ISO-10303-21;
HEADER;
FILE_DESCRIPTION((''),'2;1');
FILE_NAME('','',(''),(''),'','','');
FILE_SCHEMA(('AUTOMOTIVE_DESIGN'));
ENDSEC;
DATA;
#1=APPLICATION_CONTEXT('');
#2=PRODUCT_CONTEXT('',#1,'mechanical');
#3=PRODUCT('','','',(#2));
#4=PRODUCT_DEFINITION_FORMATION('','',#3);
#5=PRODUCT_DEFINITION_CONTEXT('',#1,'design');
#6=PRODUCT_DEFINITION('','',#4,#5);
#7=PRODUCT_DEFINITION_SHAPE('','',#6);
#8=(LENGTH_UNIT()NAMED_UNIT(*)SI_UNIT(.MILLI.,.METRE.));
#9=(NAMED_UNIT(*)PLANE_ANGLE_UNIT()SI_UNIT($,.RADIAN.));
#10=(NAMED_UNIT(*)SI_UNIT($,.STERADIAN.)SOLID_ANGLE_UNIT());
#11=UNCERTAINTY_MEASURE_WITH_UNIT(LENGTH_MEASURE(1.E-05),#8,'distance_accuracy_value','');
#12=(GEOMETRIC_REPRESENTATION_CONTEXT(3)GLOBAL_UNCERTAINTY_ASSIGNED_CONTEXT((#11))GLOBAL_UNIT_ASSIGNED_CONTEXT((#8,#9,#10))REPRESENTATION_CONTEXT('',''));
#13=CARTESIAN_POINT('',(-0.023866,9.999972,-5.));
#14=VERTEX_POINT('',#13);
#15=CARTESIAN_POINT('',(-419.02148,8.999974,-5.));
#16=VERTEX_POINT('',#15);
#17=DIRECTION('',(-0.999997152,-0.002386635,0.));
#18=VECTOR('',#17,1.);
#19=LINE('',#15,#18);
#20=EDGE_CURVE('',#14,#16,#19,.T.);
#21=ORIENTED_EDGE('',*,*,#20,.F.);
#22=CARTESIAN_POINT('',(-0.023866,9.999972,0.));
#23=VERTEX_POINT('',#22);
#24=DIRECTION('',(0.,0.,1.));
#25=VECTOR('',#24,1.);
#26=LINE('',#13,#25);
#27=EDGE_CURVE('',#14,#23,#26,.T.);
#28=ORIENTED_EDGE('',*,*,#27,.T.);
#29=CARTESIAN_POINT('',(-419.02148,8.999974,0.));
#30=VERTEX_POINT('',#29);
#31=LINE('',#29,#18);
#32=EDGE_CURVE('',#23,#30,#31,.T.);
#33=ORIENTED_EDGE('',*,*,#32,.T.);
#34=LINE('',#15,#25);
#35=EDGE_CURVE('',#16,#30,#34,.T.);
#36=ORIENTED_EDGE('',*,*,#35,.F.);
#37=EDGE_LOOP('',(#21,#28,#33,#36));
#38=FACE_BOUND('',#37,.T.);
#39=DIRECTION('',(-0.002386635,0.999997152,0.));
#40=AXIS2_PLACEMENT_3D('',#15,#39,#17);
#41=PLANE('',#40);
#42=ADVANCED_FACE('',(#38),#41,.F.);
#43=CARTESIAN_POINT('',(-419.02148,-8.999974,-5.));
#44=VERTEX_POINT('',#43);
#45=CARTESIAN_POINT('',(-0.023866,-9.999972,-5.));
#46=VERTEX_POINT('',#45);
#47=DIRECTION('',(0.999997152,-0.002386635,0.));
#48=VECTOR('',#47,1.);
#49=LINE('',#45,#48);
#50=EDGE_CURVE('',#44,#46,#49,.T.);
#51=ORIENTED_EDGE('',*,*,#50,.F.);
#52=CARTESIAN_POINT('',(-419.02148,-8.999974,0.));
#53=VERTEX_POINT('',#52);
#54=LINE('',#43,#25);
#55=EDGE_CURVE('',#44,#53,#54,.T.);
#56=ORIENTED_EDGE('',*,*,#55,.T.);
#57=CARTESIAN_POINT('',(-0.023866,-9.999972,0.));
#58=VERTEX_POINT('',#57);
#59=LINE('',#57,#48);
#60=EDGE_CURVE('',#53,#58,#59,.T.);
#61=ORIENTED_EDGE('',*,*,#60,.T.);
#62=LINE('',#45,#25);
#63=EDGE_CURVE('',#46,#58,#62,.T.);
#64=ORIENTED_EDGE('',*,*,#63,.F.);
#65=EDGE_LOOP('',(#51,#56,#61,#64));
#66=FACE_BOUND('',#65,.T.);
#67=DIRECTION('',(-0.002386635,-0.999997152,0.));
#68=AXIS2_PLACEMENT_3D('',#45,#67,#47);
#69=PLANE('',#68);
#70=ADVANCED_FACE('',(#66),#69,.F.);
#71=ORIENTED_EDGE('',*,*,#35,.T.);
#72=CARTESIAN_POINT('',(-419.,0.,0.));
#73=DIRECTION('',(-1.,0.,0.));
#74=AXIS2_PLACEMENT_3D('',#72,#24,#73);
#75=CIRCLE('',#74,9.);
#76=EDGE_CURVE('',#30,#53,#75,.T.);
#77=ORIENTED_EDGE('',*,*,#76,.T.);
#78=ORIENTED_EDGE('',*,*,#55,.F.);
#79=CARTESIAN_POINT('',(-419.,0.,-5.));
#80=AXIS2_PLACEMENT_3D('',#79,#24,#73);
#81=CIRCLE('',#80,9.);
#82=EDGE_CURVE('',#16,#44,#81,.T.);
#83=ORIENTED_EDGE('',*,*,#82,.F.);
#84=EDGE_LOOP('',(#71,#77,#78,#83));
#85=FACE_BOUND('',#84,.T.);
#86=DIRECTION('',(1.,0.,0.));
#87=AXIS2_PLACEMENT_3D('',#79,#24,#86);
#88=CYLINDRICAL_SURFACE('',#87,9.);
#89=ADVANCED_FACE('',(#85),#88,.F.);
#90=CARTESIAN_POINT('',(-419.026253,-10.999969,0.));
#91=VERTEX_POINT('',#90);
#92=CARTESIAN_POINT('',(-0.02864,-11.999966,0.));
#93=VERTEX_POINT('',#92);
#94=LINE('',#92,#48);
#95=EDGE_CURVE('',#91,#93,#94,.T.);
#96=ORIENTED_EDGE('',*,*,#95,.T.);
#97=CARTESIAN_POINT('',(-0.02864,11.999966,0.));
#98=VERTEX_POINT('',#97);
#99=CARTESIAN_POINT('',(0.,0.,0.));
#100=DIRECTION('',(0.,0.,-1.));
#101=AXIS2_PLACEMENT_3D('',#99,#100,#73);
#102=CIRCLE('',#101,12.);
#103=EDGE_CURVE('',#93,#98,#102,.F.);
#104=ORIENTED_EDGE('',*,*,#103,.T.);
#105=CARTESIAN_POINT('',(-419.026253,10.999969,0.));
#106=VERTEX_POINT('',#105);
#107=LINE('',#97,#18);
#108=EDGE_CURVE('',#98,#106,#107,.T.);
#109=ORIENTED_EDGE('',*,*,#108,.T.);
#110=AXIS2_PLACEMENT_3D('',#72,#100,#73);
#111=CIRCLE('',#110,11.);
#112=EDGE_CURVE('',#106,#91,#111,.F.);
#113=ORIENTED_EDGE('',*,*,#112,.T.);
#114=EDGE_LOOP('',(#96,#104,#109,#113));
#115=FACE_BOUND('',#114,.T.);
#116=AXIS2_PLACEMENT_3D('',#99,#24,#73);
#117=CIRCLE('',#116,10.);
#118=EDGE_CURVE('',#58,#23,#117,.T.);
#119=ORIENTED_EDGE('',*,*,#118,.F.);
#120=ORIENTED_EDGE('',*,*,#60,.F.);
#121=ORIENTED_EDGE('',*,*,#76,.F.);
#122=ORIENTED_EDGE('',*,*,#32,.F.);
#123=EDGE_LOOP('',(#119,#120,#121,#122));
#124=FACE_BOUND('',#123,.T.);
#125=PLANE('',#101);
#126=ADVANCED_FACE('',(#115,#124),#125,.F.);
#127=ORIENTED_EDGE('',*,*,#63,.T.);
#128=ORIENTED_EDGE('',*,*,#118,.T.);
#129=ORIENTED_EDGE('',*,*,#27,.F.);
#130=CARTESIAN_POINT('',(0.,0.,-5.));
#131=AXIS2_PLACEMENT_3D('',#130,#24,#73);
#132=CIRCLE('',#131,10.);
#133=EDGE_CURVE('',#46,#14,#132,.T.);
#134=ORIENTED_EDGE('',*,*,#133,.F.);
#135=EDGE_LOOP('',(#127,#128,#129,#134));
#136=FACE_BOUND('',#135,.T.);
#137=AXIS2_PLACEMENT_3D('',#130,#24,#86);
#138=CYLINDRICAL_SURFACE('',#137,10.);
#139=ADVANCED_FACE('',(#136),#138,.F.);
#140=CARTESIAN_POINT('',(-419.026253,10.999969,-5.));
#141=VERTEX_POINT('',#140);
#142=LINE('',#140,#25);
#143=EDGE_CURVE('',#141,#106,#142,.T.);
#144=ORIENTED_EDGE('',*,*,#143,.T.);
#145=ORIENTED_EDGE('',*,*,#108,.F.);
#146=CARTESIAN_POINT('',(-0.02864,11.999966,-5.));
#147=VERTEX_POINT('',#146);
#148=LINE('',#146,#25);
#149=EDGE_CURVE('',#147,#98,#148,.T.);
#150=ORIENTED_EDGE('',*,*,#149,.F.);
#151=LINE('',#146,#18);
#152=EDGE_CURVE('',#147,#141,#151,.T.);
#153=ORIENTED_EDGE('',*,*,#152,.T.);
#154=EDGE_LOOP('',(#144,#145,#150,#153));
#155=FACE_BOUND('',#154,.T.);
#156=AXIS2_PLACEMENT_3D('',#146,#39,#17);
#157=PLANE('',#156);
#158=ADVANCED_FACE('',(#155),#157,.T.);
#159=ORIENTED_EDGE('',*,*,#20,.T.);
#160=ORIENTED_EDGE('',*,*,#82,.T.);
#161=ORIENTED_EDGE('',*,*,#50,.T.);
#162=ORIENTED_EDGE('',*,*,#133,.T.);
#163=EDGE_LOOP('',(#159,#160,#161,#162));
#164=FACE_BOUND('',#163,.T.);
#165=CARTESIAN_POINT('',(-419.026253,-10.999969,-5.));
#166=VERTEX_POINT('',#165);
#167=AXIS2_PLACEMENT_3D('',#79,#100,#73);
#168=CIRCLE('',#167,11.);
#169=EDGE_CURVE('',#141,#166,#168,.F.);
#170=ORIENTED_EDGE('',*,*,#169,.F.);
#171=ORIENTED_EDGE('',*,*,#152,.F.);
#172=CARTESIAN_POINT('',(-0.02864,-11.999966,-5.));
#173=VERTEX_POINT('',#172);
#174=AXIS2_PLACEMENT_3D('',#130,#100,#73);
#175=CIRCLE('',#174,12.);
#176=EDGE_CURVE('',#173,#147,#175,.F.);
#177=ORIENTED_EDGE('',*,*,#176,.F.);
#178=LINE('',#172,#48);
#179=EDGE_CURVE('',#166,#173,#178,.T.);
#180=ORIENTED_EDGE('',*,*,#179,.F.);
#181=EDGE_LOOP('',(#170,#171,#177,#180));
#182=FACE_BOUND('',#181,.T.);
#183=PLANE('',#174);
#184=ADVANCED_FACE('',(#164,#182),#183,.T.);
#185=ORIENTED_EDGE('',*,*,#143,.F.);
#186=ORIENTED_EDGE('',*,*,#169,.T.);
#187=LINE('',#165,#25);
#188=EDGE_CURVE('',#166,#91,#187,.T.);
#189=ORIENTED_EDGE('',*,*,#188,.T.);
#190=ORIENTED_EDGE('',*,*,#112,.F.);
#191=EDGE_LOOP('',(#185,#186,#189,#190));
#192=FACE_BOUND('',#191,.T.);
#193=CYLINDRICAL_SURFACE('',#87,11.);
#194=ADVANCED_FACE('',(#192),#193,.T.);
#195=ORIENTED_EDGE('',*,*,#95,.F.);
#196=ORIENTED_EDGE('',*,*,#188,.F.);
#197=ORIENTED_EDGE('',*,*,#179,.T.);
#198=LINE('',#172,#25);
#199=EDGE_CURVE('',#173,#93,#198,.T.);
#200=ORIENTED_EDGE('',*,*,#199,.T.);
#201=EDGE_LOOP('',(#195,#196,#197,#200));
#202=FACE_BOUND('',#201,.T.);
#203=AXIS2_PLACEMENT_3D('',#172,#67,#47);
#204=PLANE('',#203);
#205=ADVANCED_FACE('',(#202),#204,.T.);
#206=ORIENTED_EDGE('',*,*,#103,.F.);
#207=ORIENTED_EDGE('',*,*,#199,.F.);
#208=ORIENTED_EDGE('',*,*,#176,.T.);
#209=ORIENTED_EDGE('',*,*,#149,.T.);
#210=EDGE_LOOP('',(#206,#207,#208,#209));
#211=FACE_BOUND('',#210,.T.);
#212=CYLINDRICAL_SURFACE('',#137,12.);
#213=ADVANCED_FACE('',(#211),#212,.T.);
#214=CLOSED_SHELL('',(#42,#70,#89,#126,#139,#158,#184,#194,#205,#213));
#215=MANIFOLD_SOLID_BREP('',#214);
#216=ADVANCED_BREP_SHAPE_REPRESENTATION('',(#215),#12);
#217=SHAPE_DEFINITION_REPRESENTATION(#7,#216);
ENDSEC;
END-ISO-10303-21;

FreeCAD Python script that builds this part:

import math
import FreeCAD as App
import Part
import Sketcher

V = App.Vector

doc = App.newDocument("Part")
body = doc.addObject("PartDesign::Body", "Body")

# Sketch on XY plane
sketch1 = body.newObject("Sketcher::SketchObject", "Sketch")
sketch1.AttachmentSupport = (doc.getObject("XY_Plane"), [""])
sketch1.MapMode = "FlatFace"
sketch1.addGeometry([
    Part.LineSegment(V(-0.02864, 11.999966, 0), V(-419.026253, 10.999969, 0)),  # 0
    Part.ArcOfCircle(Part.Circle(V(-419, 0, 0), V(0, 0, 1), 11), math.radians(90.136744), math.radians(269.863256)),  # 1
    Part.LineSegment(V(-419.026253, -10.999969, 0), V(-0.02864, -11.999966, 0)),  # 2
    Part.ArcOfCircle(Part.Circle(V(0, 0, 0), V(0, 0, 1), 12), math.radians(-90.136744), math.radians(90.136744)),  # 3
    Part.LineSegment(V(-419.02148, 8.999974, 0), V(-0.023866, 9.999972, 0)),  # 4
    Part.ArcOfCircle(Part.Circle(V(0, 0, 0), V(0, 0, 1), 10), math.radians(-90.136744), math.radians(90.136744)),  # 5
    Part.LineSegment(V(-0.023866, -9.999972, 0), V(-419.02148, -8.999974, 0)),  # 6
    Part.ArcOfCircle(Part.Circle(V(-419, 0, 0), V(0, 0, 1), 9), math.radians(90.136744), math.radians(269.863256)),  # 7
], False)
sketch1.addConstraint([
    Sketcher.Constraint("Tangent", 0, 2, 1, 1),
    Sketcher.Constraint("Tangent", 1, 2, 2, 1),
    Sketcher.Constraint("Tangent", 2, 2, 3, 1),
    Sketcher.Constraint("Tangent", 3, 2, 0, 1),
    Sketcher.Constraint("Tangent", 4, 2, 5, 2),
    Sketcher.Constraint("Tangent", 5, 1, 6, 1),
    Sketcher.Constraint("Tangent", 6, 2, 7, 2),
    Sketcher.Constraint("Tangent", 7, 1, 4, 1),
    Sketcher.Constraint("Coincident", 3, 3, -1, 1),
    Sketcher.Constraint("Coincident", 5, 3, -1, 1),
    Sketcher.Constraint("Coincident", 7, 3, 1, 3),
    Sketcher.Constraint("PointOnObject", 1, 3, -1),
    Sketcher.Constraint("Parallel", 0, 4),
    Sketcher.Constraint("Radius", 1, 11.0),
    Sketcher.Constraint("Radius", 3, 12.0),
    Sketcher.Constraint("Radius", 5, 10.0),
    Sketcher.Constraint("DistanceX", 1, 3, -1, 1, 419.0),
])
pad1 = body.newObject("PartDesign::Pad", "Pad")
pad1.Profile = sketch1
pad1.Length = 5
pad1.Reversed = True

doc.recompute()
